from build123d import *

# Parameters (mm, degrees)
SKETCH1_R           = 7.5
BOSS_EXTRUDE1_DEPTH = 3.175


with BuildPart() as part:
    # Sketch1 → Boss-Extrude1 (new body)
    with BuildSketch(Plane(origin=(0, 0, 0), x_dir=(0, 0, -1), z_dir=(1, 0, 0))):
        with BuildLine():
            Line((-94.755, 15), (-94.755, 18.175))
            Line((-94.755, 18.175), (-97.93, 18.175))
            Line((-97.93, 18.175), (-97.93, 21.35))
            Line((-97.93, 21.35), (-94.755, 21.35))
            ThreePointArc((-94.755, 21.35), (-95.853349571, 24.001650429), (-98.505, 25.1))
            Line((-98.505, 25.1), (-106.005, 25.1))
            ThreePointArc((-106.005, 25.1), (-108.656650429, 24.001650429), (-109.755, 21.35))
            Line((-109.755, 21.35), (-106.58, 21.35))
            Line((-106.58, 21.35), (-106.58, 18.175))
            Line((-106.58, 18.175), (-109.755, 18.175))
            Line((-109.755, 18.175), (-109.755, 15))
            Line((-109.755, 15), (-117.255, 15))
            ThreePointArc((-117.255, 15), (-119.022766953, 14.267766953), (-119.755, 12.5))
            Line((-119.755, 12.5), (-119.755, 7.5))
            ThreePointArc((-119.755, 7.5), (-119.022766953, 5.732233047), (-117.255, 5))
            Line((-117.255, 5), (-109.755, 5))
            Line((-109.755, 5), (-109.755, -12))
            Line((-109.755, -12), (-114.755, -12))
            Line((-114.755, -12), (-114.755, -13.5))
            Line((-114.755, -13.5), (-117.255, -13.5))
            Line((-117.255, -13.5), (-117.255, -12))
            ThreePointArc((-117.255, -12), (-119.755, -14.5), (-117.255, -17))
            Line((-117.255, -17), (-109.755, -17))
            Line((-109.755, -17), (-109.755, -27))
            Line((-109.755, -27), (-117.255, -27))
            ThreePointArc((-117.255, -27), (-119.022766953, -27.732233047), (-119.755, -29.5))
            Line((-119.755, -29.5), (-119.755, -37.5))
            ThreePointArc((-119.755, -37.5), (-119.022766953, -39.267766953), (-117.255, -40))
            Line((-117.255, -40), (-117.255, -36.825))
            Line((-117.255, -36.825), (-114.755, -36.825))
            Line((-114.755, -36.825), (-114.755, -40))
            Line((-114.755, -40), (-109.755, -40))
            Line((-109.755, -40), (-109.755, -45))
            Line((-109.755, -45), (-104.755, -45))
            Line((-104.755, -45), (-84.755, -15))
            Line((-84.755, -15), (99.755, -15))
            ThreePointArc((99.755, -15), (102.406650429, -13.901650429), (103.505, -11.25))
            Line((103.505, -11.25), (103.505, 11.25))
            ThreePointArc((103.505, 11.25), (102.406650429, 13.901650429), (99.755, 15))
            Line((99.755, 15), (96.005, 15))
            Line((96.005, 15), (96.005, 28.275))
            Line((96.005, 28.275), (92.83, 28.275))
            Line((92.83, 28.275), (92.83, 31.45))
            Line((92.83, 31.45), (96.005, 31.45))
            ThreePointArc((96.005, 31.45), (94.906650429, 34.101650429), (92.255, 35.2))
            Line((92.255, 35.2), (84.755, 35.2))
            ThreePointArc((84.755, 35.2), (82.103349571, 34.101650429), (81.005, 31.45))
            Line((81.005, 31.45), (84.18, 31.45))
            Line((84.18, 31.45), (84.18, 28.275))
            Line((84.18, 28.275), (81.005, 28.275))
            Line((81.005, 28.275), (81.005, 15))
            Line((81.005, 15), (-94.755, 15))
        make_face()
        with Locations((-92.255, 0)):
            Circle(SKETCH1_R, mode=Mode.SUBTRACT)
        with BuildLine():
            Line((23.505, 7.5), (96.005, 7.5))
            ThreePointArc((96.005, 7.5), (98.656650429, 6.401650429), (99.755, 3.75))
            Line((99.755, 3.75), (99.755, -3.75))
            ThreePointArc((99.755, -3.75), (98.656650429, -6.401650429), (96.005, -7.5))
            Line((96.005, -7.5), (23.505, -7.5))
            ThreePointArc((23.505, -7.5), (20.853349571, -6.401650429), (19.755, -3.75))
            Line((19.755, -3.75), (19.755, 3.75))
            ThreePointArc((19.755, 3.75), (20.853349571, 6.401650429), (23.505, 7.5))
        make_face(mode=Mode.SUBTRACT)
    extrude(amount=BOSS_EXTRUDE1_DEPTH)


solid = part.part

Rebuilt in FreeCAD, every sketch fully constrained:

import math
import FreeCAD as App
import Part
import Sketcher
Q = App.Units.Quantity

doc = App.newDocument("Part")
body = doc.addObject("PartDesign::Body", "Body")

# Sketch on YZ plane
sketch1 = body.newObject("Sketcher::SketchObject", "Sketch")
sketch1.AttachmentSupport = (doc.getObject("YZ_Plane"), [""])
sketch1.MapMode = "FlatFace"
sketch1.addGeometry([
    Part.LineSegment(App.Vector(15, 94.755, 0), App.Vector(18.175, 94.755, 0)),  # 0
    Part.LineSegment(App.Vector(18.175, 94.755, 0), App.Vector(18.175, 97.93, 0)),  # 1
    Part.LineSegment(App.Vector(18.175, 97.93, 0), App.Vector(21.35, 97.93, 0)),  # 2
    Part.LineSegment(App.Vector(21.35, 97.93, 0), App.Vector(21.35, 94.755, 0)),  # 3
    Part.ArcOfCircle(Part.Circle(App.Vector(21.35, 98.505, 0), App.Vector(0, 0, 1), 3.75), math.radians(-90), math.radians(0)),  # 4
    Part.LineSegment(App.Vector(25.1, 98.505, 0), App.Vector(25.1, 106.005, 0)),  # 5
    Part.ArcOfCircle(Part.Circle(App.Vector(21.35, 106.005, 0), App.Vector(0, 0, 1), 3.75), math.radians(0), math.radians(90)),  # 6
    Part.LineSegment(App.Vector(21.35, 109.755, 0), App.Vector(21.35, 106.58, 0)),  # 7
    Part.LineSegment(App.Vector(21.35, 106.58, 0), App.Vector(18.175, 106.58, 0)),  # 8
    Part.LineSegment(App.Vector(18.175, 106.58, 0), App.Vector(18.175, 109.755, 0)),  # 9
    Part.LineSegment(App.Vector(18.175, 109.755, 0), App.Vector(15, 109.755, 0)),  # 10
    Part.LineSegment(App.Vector(15, 109.755, 0), App.Vector(15, 117.255, 0)),  # 11
    Part.ArcOfCircle(Part.Circle(App.Vector(12.5, 117.255, 0), App.Vector(0, 0, 1), 2.5), math.radians(0), math.radians(90)),  # 12
    Part.LineSegment(App.Vector(12.5, 119.755, 0), App.Vector(7.5, 119.755, 0)),  # 13
    Part.ArcOfCircle(Part.Circle(App.Vector(7.5, 117.255, 0), App.Vector(0, 0, 1), 2.5), math.radians(90), math.radians(180)),  # 14
    Part.LineSegment(App.Vector(5, 117.255, 0), App.Vector(5, 109.755, 0)),  # 15
    Part.LineSegment(App.Vector(5, 109.755, 0), App.Vector(-12, 109.755, 0)),  # 16
    Part.LineSegment(App.Vector(-12, 109.755, 0), App.Vector(-12, 114.755, 0)),  # 17
    Part.LineSegment(App.Vector(-12, 114.755, 0), App.Vector(-13.5, 114.755, 0)),  # 18
    Part.LineSegment(App.Vector(-13.5, 114.755, 0), App.Vector(-13.5, 117.255, 0)),  # 19
    Part.LineSegment(App.Vector(-13.5, 117.255, 0), App.Vector(-12, 117.255, 0)),  # 20
    Part.ArcOfCircle(Part.Circle(App.Vector(-14.5, 117.255, 0), App.Vector(0, 0, 1), 2.5), math.radians(0), math.radians(180)),  # 21
    Part.LineSegment(App.Vector(-17, 117.255, 0), App.Vector(-17, 109.755, 0)),  # 22
    Part.LineSegment(App.Vector(-17, 109.755, 0), App.Vector(-27, 109.755, 0)),  # 23
    Part.LineSegment(App.Vector(-27, 109.755, 0), App.Vector(-27, 117.255, 0)),  # 24
    Part.ArcOfCircle(Part.Circle(App.Vector(-29.5, 117.255, 0), App.Vector(0, 0, 1), 2.5), math.radians(0), math.radians(90)),  # 25
    Part.LineSegment(App.Vector(-29.5, 119.755, 0), App.Vector(-37.5, 119.755, 0)),  # 26
    Part.ArcOfCircle(Part.Circle(App.Vector(-37.5, 117.255, 0), App.Vector(0, 0, 1), 2.5), math.radians(90), math.radians(180)),  # 27
    Part.LineSegment(App.Vector(-40, 117.255, 0), App.Vector(-36.825, 117.255, 0)),  # 28
    Part.LineSegment(App.Vector(-36.825, 117.255, 0), App.Vector(-36.825, 114.755, 0)),  # 29
    Part.LineSegment(App.Vector(-36.825, 114.755, 0), App.Vector(-40, 114.755, 0)),  # 30
    Part.LineSegment(App.Vector(-40, 114.755, 0), App.Vector(-40, 109.755, 0)),  # 31
    Part.LineSegment(App.Vector(-40, 109.755, 0), App.Vector(-45, 109.755, 0)),  # 32
    Part.LineSegment(App.Vector(-45, 109.755, 0), App.Vector(-45, 104.755, 0)),  # 33
    Part.LineSegment(App.Vector(-45, 104.755, 0), App.Vector(-15, 84.755, 0)),  # 34
    Part.LineSegment(App.Vector(-15, 84.755, 0), App.Vector(-15, -99.755, 0)),  # 35
    Part.ArcOfCircle(Part.Circle(App.Vector(-11.25, -99.755, 0), App.Vector(0, 0, 1), 3.75), math.radians(-180), math.radians(-90)),  # 36
    Part.LineSegment(App.Vector(-11.25, -103.505, 0), App.Vector(11.25, -103.505, 0)),  # 37
    Part.ArcOfCircle(Part.Circle(App.Vector(11.25, -99.755, 0), App.Vector(0, 0, 1), 3.75), math.radians(-90), math.radians(0)),  # 38
    Part.LineSegment(App.Vector(15, -99.755, 0), App.Vector(15, -96.005, 0)),  # 39
    Part.LineSegment(App.Vector(15, -96.005, 0), App.Vector(28.275, -96.005, 0)),  # 40
    Part.LineSegment(App.Vector(28.275, -96.005, 0), App.Vector(28.275, -92.83, 0)),  # 41
    Part.LineSegment(App.Vector(28.275, -92.83, 0), App.Vector(31.45, -92.83, 0)),  # 42
    Part.LineSegment(App.Vector(31.45, -92.83, 0), App.Vector(31.45, -96.005, 0)),  # 43
    Part.ArcOfCircle(Part.Circle(App.Vector(31.45, -92.255, 0), App.Vector(0, 0, 1), 3.75), math.radians(-90), math.radians(0)),  # 44
    Part.LineSegment(App.Vector(35.2, -92.255, 0), App.Vector(35.2, -84.755, 0)),  # 45
    Part.ArcOfCircle(Part.Circle(App.Vector(31.45, -84.755, 0), App.Vector(0, 0, 1), 3.75), math.radians(0), math.radians(90)),  # 46
    Part.LineSegment(App.Vector(31.45, -81.005, 0), App.Vector(31.45, -84.18, 0)),  # 47
    Part.LineSegment(App.Vector(31.45, -84.18, 0), App.Vector(28.275, -84.18, 0)),  # 48
    Part.LineSegment(App.Vector(28.275, -84.18, 0), App.Vector(28.275, -81.005, 0)),  # 49
    Part.LineSegment(App.Vector(28.275, -81.005, 0), App.Vector(15, -81.005, 0)),  # 50
    Part.LineSegment(App.Vector(15, -81.005, 0), App.Vector(15, 94.755, 0)),  # 51
    Part.Circle(App.Vector(0, 92.255, 0), App.Vector(0, 0, 1), 7.5),  # 52
    Part.ArcOfCircle(Part.Circle(App.Vector(3.75, -23.505, 0), App.Vector(0, 0, 1), 3.75), math.radians(0), math.radians(90)),  # 53
    Part.LineSegment(App.Vector(7.5, -23.505, 0), App.Vector(7.5, -96.005, 0)),  # 54
    Part.ArcOfCircle(Part.Circle(App.Vector(3.75, -96.005, 0), App.Vector(0, 0, 1), 3.75), math.radians(-90), math.radians(0)),  # 55
    Part.LineSegment(App.Vector(3.75, -99.755, 0), App.Vector(-3.75, -99.755, 0)),  # 56
    Part.ArcOfCircle(Part.Circle(App.Vector(-3.75, -96.005, 0), App.Vector(0, 0, 1), 3.75), math.radians(-180), math.radians(-90)),  # 57
    Part.LineSegment(App.Vector(-7.5, -96.005, 0), App.Vector(-7.5, -23.505, 0)),  # 58
    Part.ArcOfCircle(Part.Circle(App.Vector(-3.75, -23.505, 0), App.Vector(0, 0, 1), 3.75), math.radians(90), math.radians(180)),  # 59
    Part.LineSegment(App.Vector(-3.75, -19.755, 0), App.Vector(3.75, -19.755, 0)),  # 60
], False)
sketch1.addConstraint([
    Sketcher.Constraint("Coincident", 0, 2, 1, 1),
    Sketcher.Constraint("Coincident", 1, 2, 2, 1),
    Sketcher.Constraint("Coincident", 2, 2, 3, 1),
    Sketcher.Constraint("Coincident", 3, 2, 4, 1),
    Sketcher.Constraint("Tangent", 4, 2, 5, 1),
    Sketcher.Constraint("Tangent", 5, 2, 6, 1),
    Sketcher.Constraint("Coincident", 6, 2, 7, 1),
    Sketcher.Constraint("Coincident", 7, 2, 8, 1),
    Sketcher.Constraint("Coincident", 8, 2, 9, 1),
    Sketcher.Constraint("Coincident", 9, 2, 10, 1),
    Sketcher.Constraint("Coincident", 10, 2, 11, 1),
    Sketcher.Constraint("Tangent", 11, 2, 12, 1),
    Sketcher.Constraint("Tangent", 12, 2, 13, 1),
    Sketcher.Constraint("Tangent", 13, 2, 14, 1),
    Sketcher.Constraint("Tangent", 14, 2, 15, 1),
    Sketcher.Constraint("Coincident", 15, 2, 16, 1),
    Sketcher.Constraint("Coincident", 16, 2, 17, 1),
    Sketcher.Constraint("Coincident", 17, 2, 18, 1),
    Sketcher.Constraint("Coincident", 18, 2, 19, 1),
    Sketcher.Constraint("Coincident", 19, 2, 20, 1),
    Sketcher.Constraint("Coincident", 20, 2, 21, 1),
    Sketcher.Constraint("Tangent", 21, 2, 22, 1),
    Sketcher.Constraint("Coincident", 22, 2, 23, 1),
    Sketcher.Constraint("Coincident", 23, 2, 24, 1),
    Sketcher.Constraint("Tangent", 24, 2, 25, 1),
    Sketcher.Constraint("Tangent", 25, 2, 26, 1),
    Sketcher.Constraint("Tangent", 26, 2, 27, 1),
    Sketcher.Constraint("Coincident", 27, 2, 28, 1),
    Sketcher.Constraint("Coincident", 28, 2, 29, 1),
    Sketcher.Constraint("Coincident", 29, 2, 30, 1),
    Sketcher.Constraint("Coincident", 30, 2, 31, 1),
    Sketcher.Constraint("Coincident", 31, 2, 32, 1),
    Sketcher.Constraint("Coincident", 32, 2, 33, 1),
    Sketcher.Constraint("Coincident", 33, 2, 34, 1),
    Sketcher.Constraint("Coincident", 34, 2, 35, 1),
    Sketcher.Constraint("Tangent", 35, 2, 36, 1),
    Sketcher.Constraint("Tangent", 36, 2, 37, 1),
    Sketcher.Constraint("Tangent", 37, 2, 38, 1),
    Sketcher.Constraint("Tangent", 38, 2, 39, 1),
    Sketcher.Constraint("Coincident", 39, 2, 40, 1),
    Sketcher.Constraint("Coincident", 40, 2, 41, 1),
    Sketcher.Constraint("Coincident", 41, 2, 42, 1),
    Sketcher.Constraint("Coincident", 42, 2, 43, 1),
    Sketcher.Constraint("Coincident", 43, 2, 44, 1),
    Sketcher.Constraint("Tangent", 44, 2, 45, 1),
    Sketcher.Constraint("Tangent", 45, 2, 46, 1),
    Sketcher.Constraint("Coincident", 46, 2, 47, 1),
    Sketcher.Constraint("Coincident", 47, 2, 48, 1),
    Sketcher.Constraint("Coincident", 48, 2, 49, 1),
    Sketcher.Constraint("Coincident", 49, 2, 50, 1),
    Sketcher.Constraint("Coincident", 50, 2, 51, 1),
    Sketcher.Constraint("Coincident", 51, 2, 0, 1),
    Sketcher.Constraint("Tangent", 53, 1, 54, 1),
    Sketcher.Constraint("Tangent", 54, 2, 55, 2),
    Sketcher.Constraint("Tangent", 55, 1, 56, 1),
    Sketcher.Constraint("Tangent", 56, 2, 57, 2),
    Sketcher.Constraint("Tangent", 57, 1, 58, 1),
    Sketcher.Constraint("Tangent", 58, 2, 59, 2),
    Sketcher.Constraint("Tangent", 59, 1, 60, 1),
    Sketcher.Constraint("Tangent", 60, 2, 53, 2),
    Sketcher.Constraint("Horizontal", 0),
    Sketcher.Constraint("Vertical", 1),
    Sketcher.Constraint("Horizontal", 2),
    Sketcher.Constraint("Vertical", 3),
    Sketcher.Constraint("Vertical", 5),
    Sketcher.Constraint("Vertical", 7),
    Sketcher.Constraint("Horizontal", 8),
    Sketcher.Constraint("Vertical", 9),
    Sketcher.Constraint("Horizontal", 10),
    Sketcher.Constraint("Vertical", 11),
    Sketcher.Constraint("Horizontal", 13),
    Sketcher.Constraint("Vertical", 15),
    Sketcher.Constraint("Horizontal", 16),
    Sketcher.Constraint("Vertical", 17),
    Sketcher.Constraint("Horizontal", 18),
    Sketcher.Constraint("Vertical", 19),
    Sketcher.Constraint("Horizontal", 20),
    Sketcher.Constraint("Vertical", 22),
    Sketcher.Constraint("Horizontal", 23),
    Sketcher.Constraint("Vertical", 24),
    Sketcher.Constraint("Horizontal", 26),
    Sketcher.Constraint("Horizontal", 28),
    Sketcher.Constraint("Vertical", 29),
    Sketcher.Constraint("Horizontal", 30),
    Sketcher.Constraint("Vertical", 31),
    Sketcher.Constraint("Horizontal", 32),
    Sketcher.Constraint("Vertical", 33),
    Sketcher.Constraint("Vertical", 35),
    Sketcher.Constraint("Horizontal", 37),
    Sketcher.Constraint("Vertical", 39),
    Sketcher.Constraint("Horizontal", 40),
    Sketcher.Constraint("Vertical", 41),
    Sketcher.Constraint("Horizontal", 42),
    Sketcher.Constraint("Vertical", 43),
    Sketcher.Constraint("Vertical", 45),
    Sketcher.Constraint("Vertical", 47),
    Sketcher.Constraint("Horizontal", 48),
    Sketcher.Constraint("Vertical", 49),
    Sketcher.Constraint("Horizontal", 50),
    Sketcher.Constraint("Vertical", 51),
    Sketcher.Constraint("Vertical", 54),
    Sketcher.Constraint("Horizontal", 56),
    Sketcher.Constraint("Vertical", 58),
    Sketcher.Constraint("Horizontal", 60),
    Sketcher.Constraint("Equal", 4, 6),
    Sketcher.Constraint("Equal", 12, 14),
    Sketcher.Constraint("Equal", 14, 21),
    Sketcher.Constraint("Equal", 21, 25),
    Sketcher.Constraint("Equal", 25, 27),
    Sketcher.Constraint("Equal", 6, 36),
    Sketcher.Constraint("Equal", 36, 38),
    Sketcher.Constraint("Equal", 38, 44),
    Sketcher.Constraint("Equal", 44, 46),
    Sketcher.Constraint("Equal", 46, 53),
    Sketcher.Constraint("Equal", 53, 55),
    Sketcher.Constraint("Equal", 55, 57),
    Sketcher.Constraint("Equal", 57, 59),
    Sketcher.Constraint("PointOnObject", 52, 3, -2),
    Sketcher.Constraint("Horizontal", 14, 3, 21, 3),
    Sketcher.Constraint("Horizontal", 21, 3, 25, 3),
    Sketcher.Constraint("Horizontal", 0, 2, 3, 2),
    Sketcher.Constraint("Horizontal", 6, 2, 9, 2),
    Sketcher.Constraint("Horizontal", 10, 2, 15, 2),
    Sketcher.Constraint("Horizontal", 14, 2, 19, 2),
    Sketcher.Constraint("Horizontal", 16, 2, 22, 2),
    Sketcher.Constraint("Horizontal", 24, 2, 27, 2),
    Sketcher.Constraint("Horizontal", 18, 2, 29, 2),
    Sketcher.Constraint("Horizontal", 23, 2, 31, 2),
    Sketcher.Constraint("Horizontal", 57, 3, 39, 2),
    Sketcher.Constraint("Horizontal", 40, 2, 43, 2),
    Sketcher.Constraint("Horizontal", 46, 2, 49, 2),
    Sketcher.Constraint("Horizontal", 38, 2, 55, 1),
    Sketcher.Constraint("Vertical", 6, 3, 2, 2),
    Sketcher.Constraint("Vertical", 3, 2, 6, 2),
    Sketcher.Constraint("Vertical", 1, 2, 8, 2),
    Sketcher.Constraint("Vertical", 17, 2, 20, 2),
    Sketcher.Constraint("Vertical", 27, 2, 30, 2),
    Sketcher.Constraint("Vertical", 11, 2, 38, 2),
    Sketcher.Constraint("Vertical", 46, 3, 42, 2),
    Sketcher.Constraint("Vertical", 43, 2, 46, 2),
    Sketcher.Constraint("Vertical", 41, 2, 48, 2),
    Sketcher.Constraint("Vertical", 39, 2, 50, 2),
    Sketcher.Constraint("Vertical", 13, 2, 53, 1),
    Sketcher.Constraint("Equal", 0, 2),
    Sketcher.Constraint("Equal", 10, 28),
    Sketcher.Constraint("Equal", 13, 32),
    Sketcher.Constraint("Equal", 30, 42),
    Sketcher.Constraint("Equal", 48, 1),
    Sketcher.Constraint("Equal", 60, 5),
    Sketcher.Constraint("Equal", 3, 7),
    Sketcher.Constraint("Equal", 5, 11),
    Sketcher.Constraint("Equal", 32, 17),
    Sketcher.Constraint("Equal", 31, 33),
    Sketcher.Constraint("Equal", 9, 41),
    Sketcher.Constraint("Equal", 24, 45),
    Sketcher.Constraint("Equal", 43, 47),
    Sketcher.Constraint("Diameter", 52, Q("15 mm")),
    Sketcher.Constraint("Radius", 12, Q("2.5 mm")),
    Sketcher.Constraint("DistanceX", 13, 2, 13, 1, Q("5 mm")),
    Sketcher.Constraint("DistanceX", 16, 2, 16, 1, Q("17 mm")),
    Sketcher.Constraint("DistanceX", 23, 2, 23, 1, Q("10 mm")),
    Sketcher.Constraint("DistanceX", 26, 2, 26, 1, Q("8 mm")),
    Sketcher.Constraint("Radius", 4, Q("3.75 mm")),
    Sketcher.Constraint("DistanceX", 18, 2, 18, 1, Q("1.5 mm")),
    Sketcher.Constraint("DistanceX", 37, 1, 37, 2, Q("22.5 mm")),
    Sketcher.Constraint("DistanceX", 56, 2, 56, 1, Q("7.5 mm")),
    Sketcher.Constraint("DistanceY", 54, 2, 54, 1, Q("72.5 mm")),
    Sketcher.Constraint("DistanceX", -1, 1, 10, 2, Q("15 mm")),
    Sketcher.Constraint("DistanceY", 35, 2, 35, 1, Q("184.51 mm")),
    Sketcher.Constraint("DistanceY", 51, 1, 51, 2, Q("175.76 mm")),
    Sketcher.Constraint("DistanceX", -1, 1, 4, 2, Q("25.1 mm")),
    Sketcher.Constraint("DistanceX", -1, 1, 44, 2, Q("35.2 mm")),
    Sketcher.Constraint("DistanceY", -1, 1, 1, 2, Q("97.93 mm")),
    Sketcher.Constraint("DistanceY", -1, 1, 52, 3, Q("92.255 mm")),
])
pad1 = body.newObject("PartDesign::Pad", "Pad")
pad1.Profile = sketch1
pad1.Length = 3.175

doc.recompute()
